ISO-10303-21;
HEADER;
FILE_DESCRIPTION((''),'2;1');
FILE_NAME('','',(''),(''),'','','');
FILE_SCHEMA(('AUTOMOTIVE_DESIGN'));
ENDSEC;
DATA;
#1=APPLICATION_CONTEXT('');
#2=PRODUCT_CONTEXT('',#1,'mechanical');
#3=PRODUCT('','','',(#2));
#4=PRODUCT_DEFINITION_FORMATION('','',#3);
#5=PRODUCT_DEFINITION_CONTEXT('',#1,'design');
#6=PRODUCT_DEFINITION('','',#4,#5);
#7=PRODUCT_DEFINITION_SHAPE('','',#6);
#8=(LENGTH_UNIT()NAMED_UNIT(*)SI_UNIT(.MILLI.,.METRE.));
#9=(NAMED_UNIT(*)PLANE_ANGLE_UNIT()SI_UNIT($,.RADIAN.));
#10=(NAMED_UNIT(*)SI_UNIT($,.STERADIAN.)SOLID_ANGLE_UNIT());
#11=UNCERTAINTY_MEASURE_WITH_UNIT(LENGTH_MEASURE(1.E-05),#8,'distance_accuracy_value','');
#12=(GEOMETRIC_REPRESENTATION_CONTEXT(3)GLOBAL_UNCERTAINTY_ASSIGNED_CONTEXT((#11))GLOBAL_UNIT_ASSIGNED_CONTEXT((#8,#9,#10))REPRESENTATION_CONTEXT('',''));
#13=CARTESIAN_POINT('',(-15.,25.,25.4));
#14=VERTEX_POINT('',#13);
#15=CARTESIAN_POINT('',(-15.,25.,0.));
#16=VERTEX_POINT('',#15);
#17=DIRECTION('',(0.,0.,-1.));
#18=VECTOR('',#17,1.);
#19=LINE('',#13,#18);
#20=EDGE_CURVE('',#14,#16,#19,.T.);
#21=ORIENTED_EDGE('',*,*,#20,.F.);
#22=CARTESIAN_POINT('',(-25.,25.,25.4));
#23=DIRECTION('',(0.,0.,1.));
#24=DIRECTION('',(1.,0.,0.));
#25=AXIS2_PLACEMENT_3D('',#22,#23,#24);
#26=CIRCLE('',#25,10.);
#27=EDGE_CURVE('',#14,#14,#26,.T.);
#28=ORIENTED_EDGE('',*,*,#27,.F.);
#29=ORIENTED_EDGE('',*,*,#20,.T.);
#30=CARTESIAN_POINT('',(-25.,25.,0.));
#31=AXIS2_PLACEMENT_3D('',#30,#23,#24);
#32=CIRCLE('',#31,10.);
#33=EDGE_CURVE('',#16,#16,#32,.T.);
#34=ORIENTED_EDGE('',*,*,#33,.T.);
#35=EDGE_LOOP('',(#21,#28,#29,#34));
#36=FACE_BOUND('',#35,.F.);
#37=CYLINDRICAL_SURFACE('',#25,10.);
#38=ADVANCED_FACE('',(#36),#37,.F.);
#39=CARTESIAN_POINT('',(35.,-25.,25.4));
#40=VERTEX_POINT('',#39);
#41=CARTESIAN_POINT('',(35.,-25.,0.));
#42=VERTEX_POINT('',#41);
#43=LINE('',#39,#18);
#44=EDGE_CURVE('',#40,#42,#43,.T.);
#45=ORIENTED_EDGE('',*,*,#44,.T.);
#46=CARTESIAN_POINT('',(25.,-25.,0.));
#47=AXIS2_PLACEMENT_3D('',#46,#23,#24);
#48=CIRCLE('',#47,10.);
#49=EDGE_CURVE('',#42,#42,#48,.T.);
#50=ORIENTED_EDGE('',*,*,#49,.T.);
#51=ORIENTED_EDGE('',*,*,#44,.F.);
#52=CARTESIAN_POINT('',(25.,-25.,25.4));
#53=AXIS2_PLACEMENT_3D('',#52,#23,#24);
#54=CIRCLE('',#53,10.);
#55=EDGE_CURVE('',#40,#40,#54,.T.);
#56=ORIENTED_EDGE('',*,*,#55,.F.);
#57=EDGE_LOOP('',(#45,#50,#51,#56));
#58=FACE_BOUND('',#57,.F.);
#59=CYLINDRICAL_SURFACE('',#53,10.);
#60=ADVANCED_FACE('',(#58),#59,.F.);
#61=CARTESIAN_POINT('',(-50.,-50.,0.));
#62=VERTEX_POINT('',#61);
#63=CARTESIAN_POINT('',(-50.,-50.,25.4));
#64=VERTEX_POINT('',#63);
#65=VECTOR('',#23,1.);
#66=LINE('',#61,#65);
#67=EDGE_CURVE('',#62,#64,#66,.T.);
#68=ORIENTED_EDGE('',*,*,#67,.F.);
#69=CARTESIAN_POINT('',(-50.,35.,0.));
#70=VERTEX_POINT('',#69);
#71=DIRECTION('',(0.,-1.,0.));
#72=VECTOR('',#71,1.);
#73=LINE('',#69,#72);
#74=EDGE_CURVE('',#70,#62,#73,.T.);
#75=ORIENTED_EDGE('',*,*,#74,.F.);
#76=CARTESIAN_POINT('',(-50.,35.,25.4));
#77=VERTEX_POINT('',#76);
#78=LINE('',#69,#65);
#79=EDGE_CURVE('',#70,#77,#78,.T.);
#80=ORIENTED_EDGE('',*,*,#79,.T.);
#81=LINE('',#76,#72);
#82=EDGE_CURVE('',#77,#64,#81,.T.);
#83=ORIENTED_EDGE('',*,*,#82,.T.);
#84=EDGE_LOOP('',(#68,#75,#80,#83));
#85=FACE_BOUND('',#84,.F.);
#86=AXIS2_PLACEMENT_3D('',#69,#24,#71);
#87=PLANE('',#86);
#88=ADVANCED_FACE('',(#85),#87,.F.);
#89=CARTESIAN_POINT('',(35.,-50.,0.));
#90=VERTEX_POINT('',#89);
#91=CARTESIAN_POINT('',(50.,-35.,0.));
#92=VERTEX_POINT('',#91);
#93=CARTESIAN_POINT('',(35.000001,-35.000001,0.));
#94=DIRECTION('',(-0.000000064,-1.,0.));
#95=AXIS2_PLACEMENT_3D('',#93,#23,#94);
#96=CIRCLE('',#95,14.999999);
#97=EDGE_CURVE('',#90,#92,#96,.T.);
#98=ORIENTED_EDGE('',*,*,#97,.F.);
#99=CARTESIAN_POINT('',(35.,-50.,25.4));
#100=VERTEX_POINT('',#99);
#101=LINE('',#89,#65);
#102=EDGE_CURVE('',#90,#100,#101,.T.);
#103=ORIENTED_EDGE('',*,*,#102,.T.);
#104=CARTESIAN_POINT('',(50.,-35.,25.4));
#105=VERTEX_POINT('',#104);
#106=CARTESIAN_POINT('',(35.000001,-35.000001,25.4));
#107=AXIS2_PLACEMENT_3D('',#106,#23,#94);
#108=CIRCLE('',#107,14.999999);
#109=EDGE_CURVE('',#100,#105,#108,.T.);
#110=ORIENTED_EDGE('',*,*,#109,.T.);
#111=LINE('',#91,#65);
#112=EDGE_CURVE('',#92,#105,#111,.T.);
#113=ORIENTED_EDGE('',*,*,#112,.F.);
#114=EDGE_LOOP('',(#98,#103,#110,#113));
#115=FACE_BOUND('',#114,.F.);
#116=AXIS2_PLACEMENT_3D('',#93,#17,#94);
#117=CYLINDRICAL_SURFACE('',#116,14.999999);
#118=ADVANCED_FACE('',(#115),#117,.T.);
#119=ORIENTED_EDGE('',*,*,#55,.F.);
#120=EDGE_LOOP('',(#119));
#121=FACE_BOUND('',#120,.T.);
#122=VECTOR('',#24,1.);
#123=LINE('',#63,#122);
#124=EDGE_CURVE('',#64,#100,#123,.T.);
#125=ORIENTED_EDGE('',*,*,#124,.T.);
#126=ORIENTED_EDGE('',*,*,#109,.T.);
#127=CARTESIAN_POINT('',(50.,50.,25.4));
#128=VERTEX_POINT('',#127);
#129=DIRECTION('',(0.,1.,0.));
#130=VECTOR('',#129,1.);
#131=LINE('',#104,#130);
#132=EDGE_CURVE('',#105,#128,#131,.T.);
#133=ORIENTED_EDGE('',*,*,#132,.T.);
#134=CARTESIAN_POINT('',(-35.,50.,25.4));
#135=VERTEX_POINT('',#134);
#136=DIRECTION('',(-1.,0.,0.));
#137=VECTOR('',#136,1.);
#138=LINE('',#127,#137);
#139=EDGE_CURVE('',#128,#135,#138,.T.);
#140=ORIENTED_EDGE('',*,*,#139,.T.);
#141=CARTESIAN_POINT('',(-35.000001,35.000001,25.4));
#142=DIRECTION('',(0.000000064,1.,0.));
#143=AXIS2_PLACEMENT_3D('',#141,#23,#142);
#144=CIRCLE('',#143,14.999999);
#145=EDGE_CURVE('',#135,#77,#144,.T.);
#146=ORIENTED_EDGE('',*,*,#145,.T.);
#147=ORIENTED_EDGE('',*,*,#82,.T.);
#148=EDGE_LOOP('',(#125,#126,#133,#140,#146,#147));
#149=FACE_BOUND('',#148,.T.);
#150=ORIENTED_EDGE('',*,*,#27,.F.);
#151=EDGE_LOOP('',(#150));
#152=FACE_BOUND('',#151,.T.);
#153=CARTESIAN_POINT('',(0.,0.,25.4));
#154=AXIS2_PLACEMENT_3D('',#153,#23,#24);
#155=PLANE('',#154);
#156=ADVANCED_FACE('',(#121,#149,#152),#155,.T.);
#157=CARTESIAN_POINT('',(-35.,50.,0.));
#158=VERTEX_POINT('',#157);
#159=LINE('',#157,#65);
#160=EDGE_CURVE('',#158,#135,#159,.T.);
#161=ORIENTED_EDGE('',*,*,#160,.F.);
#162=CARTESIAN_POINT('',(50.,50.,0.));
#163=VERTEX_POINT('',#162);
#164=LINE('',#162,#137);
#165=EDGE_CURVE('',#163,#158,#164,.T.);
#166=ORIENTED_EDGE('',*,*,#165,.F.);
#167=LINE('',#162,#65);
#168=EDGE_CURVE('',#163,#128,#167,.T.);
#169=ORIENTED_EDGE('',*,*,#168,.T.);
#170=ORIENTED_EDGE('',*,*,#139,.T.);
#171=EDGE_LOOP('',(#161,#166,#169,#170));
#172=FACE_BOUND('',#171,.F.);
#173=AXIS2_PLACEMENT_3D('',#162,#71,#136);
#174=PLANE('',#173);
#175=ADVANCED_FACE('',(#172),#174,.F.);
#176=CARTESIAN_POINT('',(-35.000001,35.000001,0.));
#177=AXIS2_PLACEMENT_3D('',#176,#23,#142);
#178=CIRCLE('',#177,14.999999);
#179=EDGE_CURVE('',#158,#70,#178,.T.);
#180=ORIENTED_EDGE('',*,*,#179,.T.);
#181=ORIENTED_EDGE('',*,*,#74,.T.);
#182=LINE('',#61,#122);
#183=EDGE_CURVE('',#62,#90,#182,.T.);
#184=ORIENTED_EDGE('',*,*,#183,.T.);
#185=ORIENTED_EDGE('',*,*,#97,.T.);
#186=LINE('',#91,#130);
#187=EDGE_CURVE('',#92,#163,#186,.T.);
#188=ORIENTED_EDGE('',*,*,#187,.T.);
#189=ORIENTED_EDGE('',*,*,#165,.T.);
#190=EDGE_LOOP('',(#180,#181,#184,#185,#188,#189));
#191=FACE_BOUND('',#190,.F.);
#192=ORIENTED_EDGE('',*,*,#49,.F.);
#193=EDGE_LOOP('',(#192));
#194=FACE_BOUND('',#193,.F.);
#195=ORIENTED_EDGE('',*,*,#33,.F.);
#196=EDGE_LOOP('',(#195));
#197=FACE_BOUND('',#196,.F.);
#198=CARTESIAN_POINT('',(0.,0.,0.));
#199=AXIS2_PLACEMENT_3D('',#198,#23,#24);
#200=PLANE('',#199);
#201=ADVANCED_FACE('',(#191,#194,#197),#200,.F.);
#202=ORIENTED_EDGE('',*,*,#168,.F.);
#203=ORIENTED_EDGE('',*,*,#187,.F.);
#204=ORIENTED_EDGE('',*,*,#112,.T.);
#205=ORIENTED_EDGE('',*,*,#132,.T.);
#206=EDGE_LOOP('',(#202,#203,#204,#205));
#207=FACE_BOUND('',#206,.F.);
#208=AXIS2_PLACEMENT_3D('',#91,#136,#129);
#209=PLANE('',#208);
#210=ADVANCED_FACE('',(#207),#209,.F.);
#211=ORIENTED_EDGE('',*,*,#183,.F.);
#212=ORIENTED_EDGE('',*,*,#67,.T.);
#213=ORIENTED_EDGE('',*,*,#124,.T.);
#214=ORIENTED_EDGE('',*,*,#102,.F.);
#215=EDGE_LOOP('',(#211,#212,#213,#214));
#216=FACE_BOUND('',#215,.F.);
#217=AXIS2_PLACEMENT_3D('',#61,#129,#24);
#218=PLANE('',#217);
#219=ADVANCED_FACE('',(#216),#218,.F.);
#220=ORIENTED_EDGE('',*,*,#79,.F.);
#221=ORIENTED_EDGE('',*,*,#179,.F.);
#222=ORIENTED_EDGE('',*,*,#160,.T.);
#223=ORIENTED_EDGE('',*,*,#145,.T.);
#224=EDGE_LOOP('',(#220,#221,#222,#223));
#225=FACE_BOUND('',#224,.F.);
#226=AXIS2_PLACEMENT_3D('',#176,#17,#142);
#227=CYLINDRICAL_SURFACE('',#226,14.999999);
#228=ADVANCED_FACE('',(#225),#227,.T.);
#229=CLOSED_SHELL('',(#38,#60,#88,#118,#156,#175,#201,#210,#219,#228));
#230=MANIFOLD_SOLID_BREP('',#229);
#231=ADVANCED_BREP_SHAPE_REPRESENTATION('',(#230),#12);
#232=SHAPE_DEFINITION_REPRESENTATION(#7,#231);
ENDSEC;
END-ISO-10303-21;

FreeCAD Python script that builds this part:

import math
import FreeCAD as App
import Part
import Sketcher
from FreeCAD import Vector
Q = App.Units.Quantity

doc = App.newDocument("Part")
body = doc.addObject("PartDesign::Body", "Body")

sketch1 = body.newObject("Sketcher::SketchObject", "Sketch")
sketch1.AttachmentSupport = (doc.getObject("XY_Plane"), [""])
sketch1.MapMode = "FlatFace"
sketch1.addGeometry([
    Part.LineSegment(Vector(50, 50, 0), Vector(-35, 50, 0)),
    Part.ArcOfCircle(Part.Circle(Vector(-35.000001, 35.000001, 0), Vector(0, 0, 1), 14.999999), math.radians(89.999996), math.radians(180.000004)),
    Part.LineSegment(Vector(-50, 35, 0), Vector(-50, -50, 0)),
    Part.LineSegment(Vector(-50, -50, 0), Vector(35, -50, 0)),
    Part.ArcOfCircle(Part.Circle(Vector(35.000001, -35.000001, 0), Vector(0, 0, 1), 14.999999), math.radians(-90.000004), math.radians(0.000004)),
    Part.LineSegment(Vector(50, -35, 0), Vector(50, 50, 0)),
], False)
sketch1.addConstraint([
    Sketcher.Constraint("Tangent", 0, 2, 1, 1),
    Sketcher.Constraint("Tangent", 1, 2, 2, 1),
    Sketcher.Constraint("Coincident", 2, 2, 3, 1),
    Sketcher.Constraint("Tangent", 3, 2, 4, 1),
    Sketcher.Constraint("Tangent", 4, 2, 5, 1),
    Sketcher.Constraint("Coincident", 5, 2, 0, 1),
    Sketcher.Constraint("Horizontal", 0),
    Sketcher.Constraint("Vertical", 2),
    Sketcher.Constraint("Horizontal", 3),
    Sketcher.Constraint("Vertical", 5),
    Sketcher.Constraint("Equal", 1, 4),
    Sketcher.Constraint("Symmetric", 1, 3, 4, 3, -1, 1),
    Sketcher.Constraint("Equal", 3, 2),
    Sketcher.Constraint("Radius", 1, Q("14.999999 mm")),
    Sketcher.Constraint("DistanceX", 0, 2, 0, 1, Q("85 mm")),
])
pad1 = body.newObject("PartDesign::Pad", "Pad")
pad1.Profile = sketch1
pad1.Length = 25.4

sketch2 = body.newObject("Sketcher::SketchObject", "Sketch001")
sketch2.AttachmentSupport = (doc.getObject("XY_Plane"), [""])
sketch2.MapMode = "FlatFace"
sketch2.AttachmentOffset = App.Placement(Vector(0, 0, 25.4), App.Rotation())
sketch2.addGeometry([
    Part.Circle(Vector(-25, 25, 0), Vector(0, 0, 1), 10),
    Part.Circle(Vector(25, -25, 0), Vector(0, 0, 1), 10),
], False)
sketch2.addConstraint([
    Sketcher.Constraint("Equal", 0, 1),
    Sketcher.Constraint("Symmetric", 0, 3, 1, 3, -1, 1),
    Sketcher.Constraint("Diameter", 0, Q("20 mm")),
    Sketcher.Constraint("DistanceX", 0, 3, -1, 1, Q("25 mm")),
    Sketcher.Constraint("DistanceY", -1, 1, 0, 3, Q("25 mm")),
])
pocket1 = body.newObject("PartDesign::Pocket", "Pocket")
pocket1.Profile = sketch2
pocket1.Type = "ThroughAll"

doc.recompute()
